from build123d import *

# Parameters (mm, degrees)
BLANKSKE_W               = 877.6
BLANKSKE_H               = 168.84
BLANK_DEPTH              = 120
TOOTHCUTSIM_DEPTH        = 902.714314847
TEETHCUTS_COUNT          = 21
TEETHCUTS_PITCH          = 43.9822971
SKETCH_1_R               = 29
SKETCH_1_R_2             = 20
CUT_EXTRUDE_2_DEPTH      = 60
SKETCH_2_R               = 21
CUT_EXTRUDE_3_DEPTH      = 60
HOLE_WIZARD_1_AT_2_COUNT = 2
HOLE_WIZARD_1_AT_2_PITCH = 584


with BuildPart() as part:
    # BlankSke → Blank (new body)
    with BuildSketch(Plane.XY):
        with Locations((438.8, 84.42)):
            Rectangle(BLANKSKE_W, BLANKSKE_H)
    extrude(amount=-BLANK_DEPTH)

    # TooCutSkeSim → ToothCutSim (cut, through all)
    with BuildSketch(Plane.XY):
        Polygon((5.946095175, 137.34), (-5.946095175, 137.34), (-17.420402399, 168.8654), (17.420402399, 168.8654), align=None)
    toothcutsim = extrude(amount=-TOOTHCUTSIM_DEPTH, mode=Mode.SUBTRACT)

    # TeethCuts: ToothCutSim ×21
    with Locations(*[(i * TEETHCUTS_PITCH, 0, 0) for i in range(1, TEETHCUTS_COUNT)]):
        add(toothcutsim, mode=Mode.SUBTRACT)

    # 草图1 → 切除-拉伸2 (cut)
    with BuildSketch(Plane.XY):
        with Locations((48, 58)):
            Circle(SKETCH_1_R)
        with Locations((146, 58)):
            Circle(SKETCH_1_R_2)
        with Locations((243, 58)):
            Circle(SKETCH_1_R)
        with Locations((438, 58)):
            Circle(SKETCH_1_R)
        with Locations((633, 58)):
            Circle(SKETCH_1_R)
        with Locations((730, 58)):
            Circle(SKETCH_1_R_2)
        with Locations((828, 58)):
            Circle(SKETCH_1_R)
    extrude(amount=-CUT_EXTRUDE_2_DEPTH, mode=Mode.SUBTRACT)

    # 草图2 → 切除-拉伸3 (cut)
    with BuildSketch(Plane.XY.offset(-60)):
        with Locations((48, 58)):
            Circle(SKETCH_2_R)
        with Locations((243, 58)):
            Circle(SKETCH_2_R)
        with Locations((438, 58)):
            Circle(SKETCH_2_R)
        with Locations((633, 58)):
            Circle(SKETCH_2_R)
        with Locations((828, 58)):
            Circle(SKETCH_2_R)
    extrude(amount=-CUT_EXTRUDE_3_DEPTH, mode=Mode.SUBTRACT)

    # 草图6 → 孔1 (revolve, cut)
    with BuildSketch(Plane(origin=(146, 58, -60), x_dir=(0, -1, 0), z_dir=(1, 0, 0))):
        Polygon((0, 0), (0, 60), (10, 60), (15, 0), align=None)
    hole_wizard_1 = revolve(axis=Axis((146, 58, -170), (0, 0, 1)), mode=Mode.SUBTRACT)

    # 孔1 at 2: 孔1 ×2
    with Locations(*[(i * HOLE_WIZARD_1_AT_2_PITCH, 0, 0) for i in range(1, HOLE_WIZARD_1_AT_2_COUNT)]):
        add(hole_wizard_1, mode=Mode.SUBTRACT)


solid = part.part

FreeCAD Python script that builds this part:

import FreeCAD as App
import Part
import Sketcher

V = App.Vector
Q = App.Units.Quantity

doc = App.newDocument("Part")
body = doc.addObject("PartDesign::Body", "Body")

sketch1 = body.newObject("Sketcher::SketchObject", "Sketch")
sketch1.AttachmentSupport = (doc.getObject("XY_Plane"), [""])
sketch1.MapMode = "FlatFace"
sketch1.addGeometry([
    Part.LineSegment(V(0, 169, 0), V(0, 0, 0)),
    Part.LineSegment(V(0, 0, 0), V(878, 0, 0)),
    Part.LineSegment(V(878, 0, 0), V(878, 169, 0)),
    Part.LineSegment(V(878, 169, 0), V(0, 169, 0)),
], False)
sketch1.addConstraint([
    Sketcher.Constraint("Coincident", 0, 2, 1, 1),
    Sketcher.Constraint("Coincident", 1, 2, 2, 1),
    Sketcher.Constraint("Coincident", 2, 2, 3, 1),
    Sketcher.Constraint("Coincident", 3, 2, 0, 1),
    Sketcher.Constraint("Vertical", 0),
    Sketcher.Constraint("Horizontal", 1),
    Sketcher.Constraint("Vertical", 2),
    Sketcher.Constraint("Horizontal", 3),
    Sketcher.Constraint("Coincident", 0, 2, -1, 1),
    Sketcher.Constraint("DistanceX", 1, 1, 1, 2, Q("877.6 mm")),
    Sketcher.Constraint("DistanceY", 0, 2, 0, 1, Q("168.84 mm")),
])
pad1 = body.newObject("PartDesign::Pad", "Pad")
pad1.Profile = sketch1
pad1.Length = 120
pad1.Reversed = True

sketch2 = body.newObject("Sketcher::SketchObject", "Sketch001")
sketch2.AttachmentSupport = (doc.getObject("XY_Plane"), [""])
sketch2.MapMode = "FlatFace"
sketch2.addGeometry([
    Part.LineSegment(V(-6, 137, 0), V(6, 137, 0)),
    Part.LineSegment(V(6, 137, 0), V(17, 169, 0)),
    Part.LineSegment(V(17, 169, 0), V(-17, 169, 0)),
    Part.LineSegment(V(-17, 169, 0), V(-6, 137, 0)),
], False)
sketch2.addConstraint([
    Sketcher.Constraint("Coincident", 0, 2, 1, 1),
    Sketcher.Constraint("Coincident", 1, 2, 2, 1),
    Sketcher.Constraint("Coincident", 2, 2, 3, 1),
    Sketcher.Constraint("Coincident", 3, 2, 0, 1),
    Sketcher.Constraint("Horizontal", 0),
    Sketcher.Constraint("Horizontal", 2),
    Sketcher.Constraint("Equal", 1, 3),
    Sketcher.Constraint("Angle", 1, Q("70 deg")),
    Sketcher.Constraint("DistanceY", -1, 1, 0, 2, Q("137.34 mm")),
    Sketcher.Constraint("DistanceX", 0, 1, 0, 2, Q("11.89219 mm")),
    Sketcher.Constraint("DistanceY", -1, 1, 1, 2, Q("168.8654 mm")),
    Sketcher.Constraint("DistanceX", -1, 1, 0, 2, Q("5.946095 mm")),
])
pocket1 = body.newObject("PartDesign::Pocket", "Pocket")
pocket1.Profile = sketch2
pocket1.Type = "ThroughAll"
doc.recompute()

linearpattern = body.newObject("PartDesign::LinearPattern", "LinearPattern")
linearpattern.Originals = [pocket1]
linearpattern.Direction = (doc.getObject("X_Axis"), [""])
linearpattern.Mode = "offset"
linearpattern.Offset = 43.982297
linearpattern.Occurrences = 21
body.Tip = linearpattern

sketch3 = body.newObject("Sketcher::SketchObject", "Sketch002")
sketch3.AttachmentSupport = (doc.getObject("XY_Plane"), [""])
sketch3.MapMode = "FlatFace"
sketch3.addGeometry([
    Part.Circle(V(48, 58, 0), V(0, 0, 1), 29),
    Part.Circle(V(146, 58, 0), V(0, 0, 1), 20),
    Part.Circle(V(243, 58, 0), V(0, 0, 1), 29),
    Part.Circle(V(438, 58, 0), V(0, 0, 1), 29),
    Part.Circle(V(633, 58, 0), V(0, 0, 1), 29),
    Part.Circle(V(730, 58, 0), V(0, 0, 1), 20),
    Part.Circle(V(828, 58, 0), V(0, 0, 1), 29),
], False)
sketch3.addConstraint([
    Sketcher.Constraint("Equal", 0, 2),
    Sketcher.Constraint("Equal", 2, 3),
    Sketcher.Constraint("Equal", 3, 4),
    Sketcher.Constraint("Equal", 1, 5),
    Sketcher.Constraint("Equal", 4, 6),
    Sketcher.Constraint("Horizontal", 0, 3, 1, 3),
    Sketcher.Constraint("Horizontal", 1, 3, 2, 3),
    Sketcher.Constraint("Horizontal", 2, 3, 3, 3),
    Sketcher.Constraint("Horizontal", 3, 3, 4, 3),
    Sketcher.Constraint("Horizontal", 4, 3, 5, 3),
    Sketcher.Constraint("Horizontal", 5, 3, 6, 3),
    Sketcher.Constraint("Diameter", 0, Q("58 mm")),
    Sketcher.Constraint("Diameter", 1, Q("40 mm")),
    Sketcher.Constraint("DistanceX", -1, 1, 0, 3, Q("48 mm")),
    Sketcher.Constraint("DistanceY", -1, 1, 0, 3, Q("58 mm")),
    Sketcher.Constraint("DistanceX", -1, 1, 1, 3, Q("146 mm")),
    Sketcher.Constraint("DistanceX", -1, 1, 2, 3, Q("243 mm")),
    Sketcher.Constraint("DistanceX", -1, 1, 3, 3, Q("438 mm")),
    Sketcher.Constraint("DistanceX", -1, 1, 4, 3, Q("633 mm")),
    Sketcher.Constraint("DistanceX", -1, 1, 5, 3, Q("730 mm")),
    Sketcher.Constraint("DistanceX", -1, 1, 6, 3, Q("828 mm")),
])
pocket2 = body.newObject("PartDesign::Pocket", "Pocket001")
pocket2.Profile = sketch3
pocket2.Length = 60

sketch4 = body.newObject("Sketcher::SketchObject", "Sketch003")
sketch4.AttachmentSupport = (doc.getObject("XY_Plane"), [""])
sketch4.MapMode = "FlatFace"
sketch4.AttachmentOffset = App.Placement(V(0, 0, -60), App.Rotation())
sketch4.addGeometry([
    Part.Circle(V(48, 58, 0), V(0, 0, 1), 21),
    Part.Circle(V(243, 58, 0), V(0, 0, 1), 21),
    Part.Circle(V(438, 58, 0), V(0, 0, 1), 21),
    Part.Circle(V(633, 58, 0), V(0, 0, 1), 21),
    Part.Circle(V(828, 58, 0), V(0, 0, 1), 21),
], False)
sketch4.addConstraint([
    Sketcher.Constraint("Equal", 0, 1),
    Sketcher.Constraint("Equal", 1, 2),
    Sketcher.Constraint("Equal", 2, 3),
    Sketcher.Constraint("Equal", 3, 4),
    Sketcher.Constraint("Horizontal", 0, 3, 1, 3),
    Sketcher.Constraint("Horizontal", 1, 3, 2, 3),
    Sketcher.Constraint("Horizontal", 2, 3, 3, 3),
    Sketcher.Constraint("Horizontal", 3, 3, 4, 3),
    Sketcher.Constraint("Diameter", 0, Q("42 mm")),
    Sketcher.Constraint("DistanceX", -1, 1, 0, 3, Q("48 mm")),
    Sketcher.Constraint("DistanceY", -1, 1, 0, 3, Q("58 mm")),
    Sketcher.Constraint("DistanceX", -1, 1, 1, 3, Q("243 mm")),
    Sketcher.Constraint("DistanceX", -1, 1, 2, 3, Q("438 mm")),
    Sketcher.Constraint("DistanceX", -1, 1, 3, 3, Q("633 mm")),
    Sketcher.Constraint("DistanceX", -1, 1, 4, 3, Q("828 mm")),
])
pocket3 = body.newObject("PartDesign::Pocket", "Pocket002")
pocket3.Profile = sketch4
pocket3.Length = 60

sketch5 = body.newObject("Sketcher::SketchObject", "Sketch004")
sketch5.AttachmentSupport = (doc.getObject("YZ_Plane"), [""])
sketch5.MapMode = "FlatFace"
sketch5.AttachmentOffset = App.Placement(V(0, 0, 146), App.Rotation())
sketch5.addGeometry([
    Part.LineSegment(V(58, -120, 0), V(58, -60, 0)),
    Part.LineSegment(V(58, -60, 0), V(43, -60, 0)),
    Part.LineSegment(V(43, -60, 0), V(48, -120, 0)),
    Part.LineSegment(V(48, -120, 0), V(58, -120, 0)),
], False)
sketch5.addGeometry(Part.LineSegment(V(58, -120, 0), V(58, -60, 0)), True)
sketch5.addConstraint([
    Sketcher.Constraint("Coincident", 0, 2, 1, 1),
    Sketcher.Constraint("Coincident", 1, 2, 2, 1),
    Sketcher.Constraint("Coincident", 2, 2, 3, 1),
    Sketcher.Constraint("Coincident", 3, 2, 0, 1),
    Sketcher.Constraint("Vertical", 0),
    Sketcher.Constraint("Horizontal", 1),
    Sketcher.Constraint("Horizontal", 3),
    Sketcher.Constraint("Vertical", 4),
    Sketcher.Constraint("Coincident", 4, 1, 3, 2),
    Sketcher.Constraint("Horizontal", 1, 2, 4, 2),
    Sketcher.Constraint("DistanceX", 1, 2, 1, 1, Q("15 mm")),
    Sketcher.Constraint("DistanceX", 3, 1, 3, 2, Q("10 mm")),
    Sketcher.Constraint("DistanceY", 0, 1, 0, 2, Q("60 mm")),
    Sketcher.Constraint("DistanceX", -1, 1, 0, 2, Q("58 mm")),
    Sketcher.Constraint("DistanceY", 0, 2, -1, 1, Q("60 mm")),
])
groove = body.newObject("PartDesign::Groove", "Groove")
groove.Profile = sketch5
groove.ReferenceAxis = (sketch5, ["Axis0"])
groove.Angle = 360
doc.recompute()

linearpattern2 = body.newObject("PartDesign::LinearPattern", "LinearPattern001")
linearpattern2.Originals = [groove]
linearpattern2.Direction = (doc.getObject("X_Axis"), [""])
linearpattern2.Mode = "offset"
linearpattern2.Offset = 584
linearpattern2.Occurrences = 2
body.Tip = linearpattern2

doc.recompute()
